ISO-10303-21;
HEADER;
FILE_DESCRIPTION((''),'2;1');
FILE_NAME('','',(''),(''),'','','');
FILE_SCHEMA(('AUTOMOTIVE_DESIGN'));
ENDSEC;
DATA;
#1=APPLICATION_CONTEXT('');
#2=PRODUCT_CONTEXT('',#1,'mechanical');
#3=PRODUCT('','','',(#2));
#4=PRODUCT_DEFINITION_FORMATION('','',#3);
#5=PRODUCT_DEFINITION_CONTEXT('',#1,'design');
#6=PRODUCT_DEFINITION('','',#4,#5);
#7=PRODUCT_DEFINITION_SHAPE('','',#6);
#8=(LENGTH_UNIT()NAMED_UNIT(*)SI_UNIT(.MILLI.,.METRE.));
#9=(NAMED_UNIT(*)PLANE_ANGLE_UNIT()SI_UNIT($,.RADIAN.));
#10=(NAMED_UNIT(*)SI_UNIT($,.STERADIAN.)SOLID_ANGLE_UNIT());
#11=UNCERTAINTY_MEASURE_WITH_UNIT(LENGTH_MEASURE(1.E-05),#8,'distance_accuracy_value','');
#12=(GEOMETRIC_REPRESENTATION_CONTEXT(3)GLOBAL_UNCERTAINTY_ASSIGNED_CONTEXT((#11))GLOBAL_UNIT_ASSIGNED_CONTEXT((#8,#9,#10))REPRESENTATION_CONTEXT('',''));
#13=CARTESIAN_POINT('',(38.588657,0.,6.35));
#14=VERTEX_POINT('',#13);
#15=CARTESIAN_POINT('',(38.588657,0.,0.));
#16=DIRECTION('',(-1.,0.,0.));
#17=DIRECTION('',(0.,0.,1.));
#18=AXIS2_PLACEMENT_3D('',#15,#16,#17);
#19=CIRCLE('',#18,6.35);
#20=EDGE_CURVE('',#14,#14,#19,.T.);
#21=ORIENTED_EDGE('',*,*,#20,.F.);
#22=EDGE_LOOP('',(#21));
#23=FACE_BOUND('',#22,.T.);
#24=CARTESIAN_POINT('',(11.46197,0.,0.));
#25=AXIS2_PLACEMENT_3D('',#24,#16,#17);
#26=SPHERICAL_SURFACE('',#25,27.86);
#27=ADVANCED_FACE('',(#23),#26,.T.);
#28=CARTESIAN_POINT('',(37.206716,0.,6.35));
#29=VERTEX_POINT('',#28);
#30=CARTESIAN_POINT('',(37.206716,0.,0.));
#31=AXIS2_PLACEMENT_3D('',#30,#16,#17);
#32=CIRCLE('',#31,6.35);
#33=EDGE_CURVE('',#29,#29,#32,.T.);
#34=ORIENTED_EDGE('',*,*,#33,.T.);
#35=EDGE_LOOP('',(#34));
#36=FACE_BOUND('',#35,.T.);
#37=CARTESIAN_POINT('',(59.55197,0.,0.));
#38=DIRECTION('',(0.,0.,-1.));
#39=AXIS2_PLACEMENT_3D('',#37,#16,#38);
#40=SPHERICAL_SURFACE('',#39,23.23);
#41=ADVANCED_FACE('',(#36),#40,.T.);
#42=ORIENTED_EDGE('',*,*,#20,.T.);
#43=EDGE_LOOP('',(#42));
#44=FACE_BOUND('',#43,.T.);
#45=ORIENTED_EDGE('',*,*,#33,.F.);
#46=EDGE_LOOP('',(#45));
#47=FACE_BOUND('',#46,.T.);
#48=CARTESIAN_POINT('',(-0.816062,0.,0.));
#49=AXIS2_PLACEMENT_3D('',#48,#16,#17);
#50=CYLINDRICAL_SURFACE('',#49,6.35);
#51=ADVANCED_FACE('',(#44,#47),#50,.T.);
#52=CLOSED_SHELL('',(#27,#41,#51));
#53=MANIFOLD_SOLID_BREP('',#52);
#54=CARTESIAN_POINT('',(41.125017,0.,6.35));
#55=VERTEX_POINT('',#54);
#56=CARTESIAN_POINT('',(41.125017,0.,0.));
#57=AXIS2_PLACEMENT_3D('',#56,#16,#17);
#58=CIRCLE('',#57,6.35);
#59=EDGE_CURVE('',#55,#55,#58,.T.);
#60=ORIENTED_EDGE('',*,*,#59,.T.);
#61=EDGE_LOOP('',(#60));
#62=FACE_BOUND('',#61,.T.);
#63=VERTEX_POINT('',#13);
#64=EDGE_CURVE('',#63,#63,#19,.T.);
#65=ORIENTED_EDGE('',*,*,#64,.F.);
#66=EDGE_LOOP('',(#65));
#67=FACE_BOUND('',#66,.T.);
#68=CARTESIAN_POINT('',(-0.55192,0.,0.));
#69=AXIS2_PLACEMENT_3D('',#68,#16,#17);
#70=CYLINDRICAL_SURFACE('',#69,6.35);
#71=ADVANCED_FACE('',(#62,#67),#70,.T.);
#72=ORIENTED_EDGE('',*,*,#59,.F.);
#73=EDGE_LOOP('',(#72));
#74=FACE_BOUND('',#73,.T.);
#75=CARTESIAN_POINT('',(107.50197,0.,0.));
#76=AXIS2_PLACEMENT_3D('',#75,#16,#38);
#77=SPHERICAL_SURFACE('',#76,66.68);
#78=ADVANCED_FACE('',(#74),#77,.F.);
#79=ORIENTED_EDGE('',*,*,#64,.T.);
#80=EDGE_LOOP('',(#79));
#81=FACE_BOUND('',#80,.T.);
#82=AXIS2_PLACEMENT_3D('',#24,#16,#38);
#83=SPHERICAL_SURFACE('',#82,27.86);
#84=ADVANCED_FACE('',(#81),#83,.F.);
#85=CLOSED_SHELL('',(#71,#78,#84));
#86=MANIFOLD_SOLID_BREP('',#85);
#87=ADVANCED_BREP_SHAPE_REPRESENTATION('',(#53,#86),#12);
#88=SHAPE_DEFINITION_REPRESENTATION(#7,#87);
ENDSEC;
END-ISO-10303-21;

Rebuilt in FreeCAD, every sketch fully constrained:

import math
import FreeCAD as App
import Part
import Sketcher

V = App.Vector

doc = App.newDocument("Part")
body = doc.addObject("PartDesign::Body", "Body")

# Sketch on XZ plane
sketch1 = body.newObject("Sketcher::SketchObject", "Sketch")
sketch1.AttachmentSupport = (doc.getObject("XZ_Plane"), [""])
sketch1.MapMode = "FlatFace"
sketch1.addGeometry(Part.ArcOfCircle(Part.Circle(V(59.6, 0, 0), V(0, 0, 1), 23.2), math.radians(-180), math.radians(-164.14)), False)
sketch1.addGeometry(Part.LineSegment(V(36.3, 0, 0), V(39.3, 0, 0)), False)
sketch1.addGeometry(Part.ArcOfCircle(Part.Circle(V(11.5, 0, 0), V(0, 0, 1), 27.9), math.radians(-13.17), math.radians(0)), False)
sketch1.addGeometry(Part.LineSegment(V(38.6, -6.3, 0), V(37.2, -6.3, 0)), False)
sketch1.addConstraint(Sketcher.Constraint("Coincident", 0, 1, 1, 1))
sketch1.addConstraint(Sketcher.Constraint("Coincident", 1, 2, 2, 2))
sketch1.addConstraint(Sketcher.Constraint("Coincident", 2, 1, 3, 1))
sketch1.addConstraint(Sketcher.Constraint("Coincident", 3, 2, 0, 2))
sketch1.addConstraint(Sketcher.Constraint("Horizontal", 1))
sketch1.addConstraint(Sketcher.Constraint("Horizontal", 3))
sketch1.addConstraint(Sketcher.Constraint("PointOnObject", 0, 3, -1))
sketch1.addConstraint(Sketcher.Constraint("PointOnObject", 2, 3, -1))
sketch1.addConstraint(Sketcher.Constraint("PointOnObject", 0, 1, -1))
sketch1.addConstraint(Sketcher.Constraint("DistanceX", 1, 1, 1, 2, 3.0))
sketch1.addConstraint(Sketcher.Constraint("Radius", 0, 23.23))
sketch1.addConstraint(Sketcher.Constraint("Radius", 2, 27.86))
sketch1.addConstraint(Sketcher.Constraint("DistanceY", 2, 1, -1, 1, 6.35))
sketch1.addConstraint(Sketcher.Constraint("DistanceX", -1, 1, 0, 3, 59.551971))
revolution = body.newObject("PartDesign::Revolution", "Revolution")
revolution.Profile = sketch1
revolution.ReferenceAxis = (sketch1, ["H_Axis"])
revolution.Angle = 360
body2 = doc.addObject("PartDesign::Body", "Body001")

# Sketch on XZ plane
sketch2 = body2.newObject("Sketcher::SketchObject", "Sketch001")
sketch2.AttachmentSupport = (doc.getObject("XZ_Plane001"), [""])
sketch2.MapMode = "FlatFace"
sketch2.addGeometry(Part.LineSegment(V(41.1, -6.3, 0), V(38.6, -6.3, 0)), False)
sketch2.addGeometry(Part.ArcOfCircle(Part.Circle(V(11.5, 0, 0), V(0, 0, 1), 27.9), math.radians(-13.17), math.radians(0)), False)
sketch2.addGeometry(Part.LineSegment(V(39.3, 0, 0), V(40.8, 0, 0)), False)
sketch2.addGeometry(Part.ArcOfCircle(Part.Circle(V(107.5, 0, 0), V(0, 0, 1), 66.7), math.radians(-180), math.radians(-174.54)), False)
sketch2.addConstraint(Sketcher.Constraint("Coincident", 0, 2, 1, 1))
sketch2.addConstraint(Sketcher.Constraint("Coincident", 1, 2, 2, 1))
sketch2.addConstraint(Sketcher.Constraint("Coincident", 2, 2, 3, 1))
sketch2.addConstraint(Sketcher.Constraint("Coincident", 3, 2, 0, 1))
sketch2.addConstraint(Sketcher.Constraint("Horizontal", 0))
sketch2.addConstraint(Sketcher.Constraint("Horizontal", 2))
sketch2.addConstraint(Sketcher.Constraint("PointOnObject", 1, 3, -1))
sketch2.addConstraint(Sketcher.Constraint("PointOnObject", 3, 3, -1))
sketch2.addConstraint(Sketcher.Constraint("PointOnObject", 1, 2, -1))
sketch2.addConstraint(Sketcher.Constraint("Radius", 1, 27.86))
sketch2.addConstraint(Sketcher.Constraint("Radius", 3, 66.68))
sketch2.addConstraint(Sketcher.Constraint("DistanceX", 2, 1, 2, 2, 1.5))
sketch2.addConstraint(Sketcher.Constraint("DistanceY", 0, 2, -1, 1, 6.35))
sketch2.addConstraint(Sketcher.Constraint("DistanceX", -1, 1, 1, 3, 11.461971))
revolution2 = body2.newObject("PartDesign::Revolution", "Revolution001")
revolution2.Profile = sketch2
revolution2.ReferenceAxis = (sketch2, ["H_Axis"])
revolution2.Angle = 360

doc.recompute()
